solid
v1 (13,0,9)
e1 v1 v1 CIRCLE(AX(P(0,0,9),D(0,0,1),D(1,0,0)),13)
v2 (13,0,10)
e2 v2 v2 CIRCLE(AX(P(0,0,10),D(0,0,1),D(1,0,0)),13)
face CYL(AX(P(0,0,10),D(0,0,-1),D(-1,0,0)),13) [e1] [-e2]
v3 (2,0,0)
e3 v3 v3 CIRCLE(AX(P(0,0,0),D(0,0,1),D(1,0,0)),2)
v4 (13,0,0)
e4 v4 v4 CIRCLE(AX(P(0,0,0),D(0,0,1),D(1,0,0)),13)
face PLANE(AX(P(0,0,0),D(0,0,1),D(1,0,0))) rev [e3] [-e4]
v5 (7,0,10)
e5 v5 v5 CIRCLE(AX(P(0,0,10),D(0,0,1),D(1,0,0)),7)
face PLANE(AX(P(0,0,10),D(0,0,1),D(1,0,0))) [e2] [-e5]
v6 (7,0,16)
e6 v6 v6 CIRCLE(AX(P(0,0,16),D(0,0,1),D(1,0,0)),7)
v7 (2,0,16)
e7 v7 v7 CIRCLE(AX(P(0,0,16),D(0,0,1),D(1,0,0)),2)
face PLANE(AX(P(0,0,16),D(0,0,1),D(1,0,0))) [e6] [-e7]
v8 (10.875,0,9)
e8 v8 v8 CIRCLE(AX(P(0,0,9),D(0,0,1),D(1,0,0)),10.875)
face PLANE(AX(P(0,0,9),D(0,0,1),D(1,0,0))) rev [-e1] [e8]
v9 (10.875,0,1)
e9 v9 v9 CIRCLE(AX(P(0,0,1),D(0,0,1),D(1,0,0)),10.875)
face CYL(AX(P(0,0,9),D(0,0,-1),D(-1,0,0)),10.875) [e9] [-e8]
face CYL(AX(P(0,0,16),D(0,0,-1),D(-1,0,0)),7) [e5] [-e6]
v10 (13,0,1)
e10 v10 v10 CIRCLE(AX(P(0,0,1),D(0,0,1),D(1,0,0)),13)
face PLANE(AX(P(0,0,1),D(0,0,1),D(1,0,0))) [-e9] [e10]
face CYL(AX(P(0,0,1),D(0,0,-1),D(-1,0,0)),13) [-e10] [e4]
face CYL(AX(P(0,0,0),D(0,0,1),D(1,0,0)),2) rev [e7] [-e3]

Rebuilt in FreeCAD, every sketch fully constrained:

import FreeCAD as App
import Part
import Sketcher
Q = App.Units.Quantity

doc = App.newDocument("Part")
body = doc.addObject("PartDesign::Body", "Body")

sketch1 = doc.addObject("Sketcher::SketchObject", "Sketch")
body.addObject(sketch1)
sketch1.AttachmentSupport = (doc.XY_Plane, [""])
sketch1.MapMode = "FlatFace"
sketch1.addGeometry(Part.Circle(App.Vector(0, 0, 0), App.Vector(0, 0, 1), 13), False)
sketch1.addConstraint([
    Sketcher.Constraint("Coincident", 0, 3, -1, 1),
    Sketcher.Constraint("Diameter", 0, Q("26 mm")),
])
pad1 = doc.addObject("PartDesign::Pad", "Pad")
body.addObject(pad1)
pad1.Profile = sketch1
pad1.Length = 1

sketch2 = doc.addObject("Sketcher::SketchObject", "Sketch001")
body.addObject(sketch2)
sketch2.AttachmentSupport = (doc.XY_Plane, [""])
sketch2.MapMode = "FlatFace"
sketch2.AttachmentOffset = App.Placement(App.Vector(0, 0, 1), App.Rotation())
sketch2.addGeometry(Part.Circle(App.Vector(0, 0, 0), App.Vector(0, 0, 1), 11), False)
sketch2.addConstraint([
    Sketcher.Constraint("Coincident", 0, 3, -1, 1),
    Sketcher.Constraint("Diameter", 0, Q("21.75 mm")),
])
pad2 = doc.addObject("PartDesign::Pad", "Pad001")
body.addObject(pad2)
pad2.Profile = sketch2
pad2.Length = 8

sketch3 = doc.addObject("Sketcher::SketchObject", "Sketch002")
body.addObject(sketch3)
sketch3.AttachmentSupport = (doc.XY_Plane, [""])
sketch3.MapMode = "FlatFace"
sketch3.AttachmentOffset = App.Placement(App.Vector(0, 0, 9), App.Rotation())
sketch3.addGeometry(Part.Circle(App.Vector(0, 0, 0), App.Vector(0, 0, 1), 13), False)
sketch3.addConstraint([
    Sketcher.Constraint("Coincident", 0, 3, -1, 1),
    Sketcher.Constraint("Diameter", 0, Q("26 mm")),
])
pad3 = doc.addObject("PartDesign::Pad", "Pad002")
body.addObject(pad3)
pad3.Profile = sketch3
pad3.Length = 1

sketch4 = doc.addObject("Sketcher::SketchObject", "Sketch003")
body.addObject(sketch4)
sketch4.AttachmentSupport = (doc.XY_Plane, [""])
sketch4.MapMode = "FlatFace"
sketch4.AttachmentOffset = App.Placement(App.Vector(0, 0, 10), App.Rotation())
sketch4.addGeometry(Part.Circle(App.Vector(0, 0, 0), App.Vector(0, 0, 1), 7), False)
sketch4.addConstraint([
    Sketcher.Constraint("Coincident", 0, 3, -1, 1),
    Sketcher.Constraint("Diameter", 0, Q("14 mm")),
])
pad4 = doc.addObject("PartDesign::Pad", "Pad003")
body.addObject(pad4)
pad4.Profile = sketch4
pad4.Length = 6

sketch5 = doc.addObject("Sketcher::SketchObject", "Sketch004")
body.addObject(sketch5)
sketch5.AttachmentSupport = (doc.XY_Plane, [""])
sketch5.MapMode = "FlatFace"
sketch5.AttachmentOffset = App.Placement(App.Vector(0, 0, 16), App.Rotation())
sketch5.addGeometry(Part.Circle(App.Vector(0, 0, 0), App.Vector(0, 0, 1), 2), False)
sketch5.addConstraint([
    Sketcher.Constraint("Coincident", 0, 3, -1, 1),
    Sketcher.Constraint("Diameter", 0, Q("4 mm")),
])
pocket1 = doc.addObject("PartDesign::Pocket", "Pocket")
body.addObject(pocket1)
pocket1.Profile = sketch5
pocket1.Type = "ThroughAll"

doc.recompute()
